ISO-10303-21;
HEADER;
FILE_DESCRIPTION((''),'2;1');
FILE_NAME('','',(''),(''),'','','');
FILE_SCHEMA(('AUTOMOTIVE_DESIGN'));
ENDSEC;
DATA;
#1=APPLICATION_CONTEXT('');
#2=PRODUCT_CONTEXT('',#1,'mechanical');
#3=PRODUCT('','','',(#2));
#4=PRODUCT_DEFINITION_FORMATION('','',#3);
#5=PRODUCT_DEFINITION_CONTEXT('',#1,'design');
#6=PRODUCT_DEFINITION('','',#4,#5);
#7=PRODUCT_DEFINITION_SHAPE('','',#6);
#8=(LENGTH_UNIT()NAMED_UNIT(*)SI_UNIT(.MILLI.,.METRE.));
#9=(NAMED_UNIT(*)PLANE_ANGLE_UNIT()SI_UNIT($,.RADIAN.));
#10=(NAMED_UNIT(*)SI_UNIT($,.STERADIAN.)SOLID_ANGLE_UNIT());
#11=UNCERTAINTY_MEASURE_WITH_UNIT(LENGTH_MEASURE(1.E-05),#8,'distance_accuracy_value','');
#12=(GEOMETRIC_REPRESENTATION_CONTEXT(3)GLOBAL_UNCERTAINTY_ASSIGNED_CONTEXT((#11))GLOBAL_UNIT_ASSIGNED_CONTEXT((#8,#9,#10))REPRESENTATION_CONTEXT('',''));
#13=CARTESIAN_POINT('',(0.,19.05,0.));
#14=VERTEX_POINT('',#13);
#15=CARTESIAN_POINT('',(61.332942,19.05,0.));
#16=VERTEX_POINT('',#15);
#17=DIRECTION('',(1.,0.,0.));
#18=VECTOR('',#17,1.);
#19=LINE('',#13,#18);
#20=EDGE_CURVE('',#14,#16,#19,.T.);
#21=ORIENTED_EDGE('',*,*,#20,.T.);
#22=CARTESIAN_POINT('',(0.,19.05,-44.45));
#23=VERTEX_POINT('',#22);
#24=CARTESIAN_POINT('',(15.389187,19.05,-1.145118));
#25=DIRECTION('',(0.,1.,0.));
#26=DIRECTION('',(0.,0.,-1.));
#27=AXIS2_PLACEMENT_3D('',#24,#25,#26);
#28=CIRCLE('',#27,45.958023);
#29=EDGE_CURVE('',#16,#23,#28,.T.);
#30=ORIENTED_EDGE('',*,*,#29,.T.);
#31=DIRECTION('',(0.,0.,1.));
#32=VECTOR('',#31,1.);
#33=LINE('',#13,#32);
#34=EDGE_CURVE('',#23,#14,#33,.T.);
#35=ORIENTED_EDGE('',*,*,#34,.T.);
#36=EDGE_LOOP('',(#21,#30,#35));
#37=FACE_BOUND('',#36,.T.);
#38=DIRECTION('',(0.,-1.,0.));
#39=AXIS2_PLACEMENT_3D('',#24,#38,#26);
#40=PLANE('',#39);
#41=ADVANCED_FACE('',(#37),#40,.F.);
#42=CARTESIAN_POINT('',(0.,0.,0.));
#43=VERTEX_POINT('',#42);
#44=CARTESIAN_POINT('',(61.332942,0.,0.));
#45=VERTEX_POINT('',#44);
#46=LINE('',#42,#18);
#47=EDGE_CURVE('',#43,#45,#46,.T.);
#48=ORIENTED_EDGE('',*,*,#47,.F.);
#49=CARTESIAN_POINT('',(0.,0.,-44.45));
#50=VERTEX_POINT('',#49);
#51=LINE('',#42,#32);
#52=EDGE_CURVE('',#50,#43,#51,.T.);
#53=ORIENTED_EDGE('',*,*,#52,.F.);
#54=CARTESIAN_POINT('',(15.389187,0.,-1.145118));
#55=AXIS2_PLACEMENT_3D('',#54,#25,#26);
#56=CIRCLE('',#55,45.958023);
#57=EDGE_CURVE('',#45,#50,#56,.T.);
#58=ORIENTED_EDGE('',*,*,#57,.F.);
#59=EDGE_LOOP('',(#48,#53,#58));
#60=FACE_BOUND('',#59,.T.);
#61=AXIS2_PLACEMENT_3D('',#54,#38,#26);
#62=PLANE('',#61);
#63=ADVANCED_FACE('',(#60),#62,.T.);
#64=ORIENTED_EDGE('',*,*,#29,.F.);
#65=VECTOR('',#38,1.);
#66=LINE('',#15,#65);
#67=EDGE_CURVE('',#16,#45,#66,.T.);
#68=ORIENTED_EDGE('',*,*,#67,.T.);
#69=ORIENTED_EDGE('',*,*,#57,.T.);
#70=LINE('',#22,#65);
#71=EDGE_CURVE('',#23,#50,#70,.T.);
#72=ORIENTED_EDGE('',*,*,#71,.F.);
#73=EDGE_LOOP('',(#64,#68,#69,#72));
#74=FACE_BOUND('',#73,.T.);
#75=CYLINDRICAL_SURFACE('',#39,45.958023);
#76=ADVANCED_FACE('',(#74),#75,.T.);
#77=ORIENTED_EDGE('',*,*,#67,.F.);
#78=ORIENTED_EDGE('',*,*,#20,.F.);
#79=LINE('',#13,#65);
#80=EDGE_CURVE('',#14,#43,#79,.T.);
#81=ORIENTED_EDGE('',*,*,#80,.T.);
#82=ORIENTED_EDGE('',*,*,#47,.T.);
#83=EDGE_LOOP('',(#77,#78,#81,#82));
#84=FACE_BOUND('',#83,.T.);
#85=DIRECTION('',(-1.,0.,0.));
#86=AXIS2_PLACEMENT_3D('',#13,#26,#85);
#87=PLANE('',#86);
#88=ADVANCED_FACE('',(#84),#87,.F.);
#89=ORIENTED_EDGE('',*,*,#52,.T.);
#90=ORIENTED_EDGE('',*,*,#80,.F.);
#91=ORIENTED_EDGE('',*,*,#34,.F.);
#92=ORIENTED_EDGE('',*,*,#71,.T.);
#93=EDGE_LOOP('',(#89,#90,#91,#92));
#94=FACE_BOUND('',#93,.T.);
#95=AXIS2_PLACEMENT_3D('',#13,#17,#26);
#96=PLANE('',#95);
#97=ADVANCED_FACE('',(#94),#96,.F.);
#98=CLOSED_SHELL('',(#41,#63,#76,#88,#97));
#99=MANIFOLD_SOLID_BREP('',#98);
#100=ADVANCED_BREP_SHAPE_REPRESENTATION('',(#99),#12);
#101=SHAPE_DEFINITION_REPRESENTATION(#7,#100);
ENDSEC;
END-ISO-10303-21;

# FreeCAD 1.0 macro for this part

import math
import FreeCAD as App
import Part
import Sketcher

V = App.Vector
Q = App.Units.Quantity

doc = App.newDocument("Part")
body = doc.addObject("PartDesign::Body", "Body")

# Sketch on XZ plane
sketch1 = body.newObject("Sketcher::SketchObject", "Sketch")
sketch1.AttachmentSupport = (doc.getObject("XZ_Plane"), [""])
sketch1.MapMode = "FlatFace"
sketch1.addGeometry([
    Part.LineSegment(V(0, -44, 0), V(0, 0, 0)),
    Part.LineSegment(V(0, 0, 0), V(61, 0, 0)),
    Part.ArcOfCircle(Part.Circle(V(15, -1, 0), V(0, 0, 1), 46), math.radians(-110), math.radians(1)),
], False)
sketch1.addConstraint([
    Sketcher.Constraint("Coincident", 0, 2, 1, 1),
    Sketcher.Constraint("Coincident", 1, 2, 2, 2),
    Sketcher.Constraint("Coincident", 2, 1, 0, 1),
    Sketcher.Constraint("Vertical", 0),
    Sketcher.Constraint("Horizontal", 1),
    Sketcher.Constraint("Coincident", 0, 2, -1, 1),
    Sketcher.Constraint("DistanceY", 0, 1, 0, 2, Q("1.75 in")),
    Sketcher.Constraint("Radius", 2, Q("45.958023 mm")),
    Sketcher.Constraint("DistanceX", 1, 1, 1, 2, Q("61.332942 mm")),
])
pad1 = body.newObject("PartDesign::Pad", "Pad")
pad1.Profile = sketch1
pad1.Length = Q("0.75 in")
pad1.Reversed = True

doc.recompute()
